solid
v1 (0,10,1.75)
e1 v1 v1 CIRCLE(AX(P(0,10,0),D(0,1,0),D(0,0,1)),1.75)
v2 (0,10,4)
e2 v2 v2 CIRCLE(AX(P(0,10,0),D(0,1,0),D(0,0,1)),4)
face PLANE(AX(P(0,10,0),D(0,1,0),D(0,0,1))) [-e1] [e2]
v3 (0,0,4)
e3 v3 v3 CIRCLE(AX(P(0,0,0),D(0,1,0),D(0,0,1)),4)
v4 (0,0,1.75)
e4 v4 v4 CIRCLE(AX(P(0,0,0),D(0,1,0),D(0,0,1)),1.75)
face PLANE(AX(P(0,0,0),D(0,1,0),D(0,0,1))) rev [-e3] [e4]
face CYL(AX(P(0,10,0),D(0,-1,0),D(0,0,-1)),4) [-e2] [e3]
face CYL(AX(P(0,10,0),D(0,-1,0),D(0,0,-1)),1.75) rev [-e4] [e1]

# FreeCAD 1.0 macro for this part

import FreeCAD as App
import Part
import Sketcher

V = App.Vector

doc = App.newDocument("Part")
body = doc.addObject("PartDesign::Body", "Body")

# Sketch on XZ plane
sketch1 = body.newObject("Sketcher::SketchObject", "Sketch")
sketch1.AttachmentSupport = (doc.getObject("XZ_Plane"), [""])
sketch1.MapMode = "FlatFace"
sketch1.addGeometry(Part.Circle(V(0, 0, 0), V(0, 0, 1), 4), False)
sketch1.addGeometry(Part.Circle(V(0, 0, 0), V(0, 0, 1), 1.8), False)
sketch1.addConstraint(Sketcher.Constraint("Coincident", 0, 3, -1, 1))
sketch1.addConstraint(Sketcher.Constraint("Coincident", 1, 3, -1, 1))
sketch1.addConstraint(Sketcher.Constraint("Diameter", 0, 8.0))
sketch1.addConstraint(Sketcher.Constraint("Diameter", 1, 3.5))
pad1 = body.newObject("PartDesign::Pad", "Pad")
pad1.Profile = sketch1
pad1.Length = 10
pad1.Reversed = True

doc.recompute()
